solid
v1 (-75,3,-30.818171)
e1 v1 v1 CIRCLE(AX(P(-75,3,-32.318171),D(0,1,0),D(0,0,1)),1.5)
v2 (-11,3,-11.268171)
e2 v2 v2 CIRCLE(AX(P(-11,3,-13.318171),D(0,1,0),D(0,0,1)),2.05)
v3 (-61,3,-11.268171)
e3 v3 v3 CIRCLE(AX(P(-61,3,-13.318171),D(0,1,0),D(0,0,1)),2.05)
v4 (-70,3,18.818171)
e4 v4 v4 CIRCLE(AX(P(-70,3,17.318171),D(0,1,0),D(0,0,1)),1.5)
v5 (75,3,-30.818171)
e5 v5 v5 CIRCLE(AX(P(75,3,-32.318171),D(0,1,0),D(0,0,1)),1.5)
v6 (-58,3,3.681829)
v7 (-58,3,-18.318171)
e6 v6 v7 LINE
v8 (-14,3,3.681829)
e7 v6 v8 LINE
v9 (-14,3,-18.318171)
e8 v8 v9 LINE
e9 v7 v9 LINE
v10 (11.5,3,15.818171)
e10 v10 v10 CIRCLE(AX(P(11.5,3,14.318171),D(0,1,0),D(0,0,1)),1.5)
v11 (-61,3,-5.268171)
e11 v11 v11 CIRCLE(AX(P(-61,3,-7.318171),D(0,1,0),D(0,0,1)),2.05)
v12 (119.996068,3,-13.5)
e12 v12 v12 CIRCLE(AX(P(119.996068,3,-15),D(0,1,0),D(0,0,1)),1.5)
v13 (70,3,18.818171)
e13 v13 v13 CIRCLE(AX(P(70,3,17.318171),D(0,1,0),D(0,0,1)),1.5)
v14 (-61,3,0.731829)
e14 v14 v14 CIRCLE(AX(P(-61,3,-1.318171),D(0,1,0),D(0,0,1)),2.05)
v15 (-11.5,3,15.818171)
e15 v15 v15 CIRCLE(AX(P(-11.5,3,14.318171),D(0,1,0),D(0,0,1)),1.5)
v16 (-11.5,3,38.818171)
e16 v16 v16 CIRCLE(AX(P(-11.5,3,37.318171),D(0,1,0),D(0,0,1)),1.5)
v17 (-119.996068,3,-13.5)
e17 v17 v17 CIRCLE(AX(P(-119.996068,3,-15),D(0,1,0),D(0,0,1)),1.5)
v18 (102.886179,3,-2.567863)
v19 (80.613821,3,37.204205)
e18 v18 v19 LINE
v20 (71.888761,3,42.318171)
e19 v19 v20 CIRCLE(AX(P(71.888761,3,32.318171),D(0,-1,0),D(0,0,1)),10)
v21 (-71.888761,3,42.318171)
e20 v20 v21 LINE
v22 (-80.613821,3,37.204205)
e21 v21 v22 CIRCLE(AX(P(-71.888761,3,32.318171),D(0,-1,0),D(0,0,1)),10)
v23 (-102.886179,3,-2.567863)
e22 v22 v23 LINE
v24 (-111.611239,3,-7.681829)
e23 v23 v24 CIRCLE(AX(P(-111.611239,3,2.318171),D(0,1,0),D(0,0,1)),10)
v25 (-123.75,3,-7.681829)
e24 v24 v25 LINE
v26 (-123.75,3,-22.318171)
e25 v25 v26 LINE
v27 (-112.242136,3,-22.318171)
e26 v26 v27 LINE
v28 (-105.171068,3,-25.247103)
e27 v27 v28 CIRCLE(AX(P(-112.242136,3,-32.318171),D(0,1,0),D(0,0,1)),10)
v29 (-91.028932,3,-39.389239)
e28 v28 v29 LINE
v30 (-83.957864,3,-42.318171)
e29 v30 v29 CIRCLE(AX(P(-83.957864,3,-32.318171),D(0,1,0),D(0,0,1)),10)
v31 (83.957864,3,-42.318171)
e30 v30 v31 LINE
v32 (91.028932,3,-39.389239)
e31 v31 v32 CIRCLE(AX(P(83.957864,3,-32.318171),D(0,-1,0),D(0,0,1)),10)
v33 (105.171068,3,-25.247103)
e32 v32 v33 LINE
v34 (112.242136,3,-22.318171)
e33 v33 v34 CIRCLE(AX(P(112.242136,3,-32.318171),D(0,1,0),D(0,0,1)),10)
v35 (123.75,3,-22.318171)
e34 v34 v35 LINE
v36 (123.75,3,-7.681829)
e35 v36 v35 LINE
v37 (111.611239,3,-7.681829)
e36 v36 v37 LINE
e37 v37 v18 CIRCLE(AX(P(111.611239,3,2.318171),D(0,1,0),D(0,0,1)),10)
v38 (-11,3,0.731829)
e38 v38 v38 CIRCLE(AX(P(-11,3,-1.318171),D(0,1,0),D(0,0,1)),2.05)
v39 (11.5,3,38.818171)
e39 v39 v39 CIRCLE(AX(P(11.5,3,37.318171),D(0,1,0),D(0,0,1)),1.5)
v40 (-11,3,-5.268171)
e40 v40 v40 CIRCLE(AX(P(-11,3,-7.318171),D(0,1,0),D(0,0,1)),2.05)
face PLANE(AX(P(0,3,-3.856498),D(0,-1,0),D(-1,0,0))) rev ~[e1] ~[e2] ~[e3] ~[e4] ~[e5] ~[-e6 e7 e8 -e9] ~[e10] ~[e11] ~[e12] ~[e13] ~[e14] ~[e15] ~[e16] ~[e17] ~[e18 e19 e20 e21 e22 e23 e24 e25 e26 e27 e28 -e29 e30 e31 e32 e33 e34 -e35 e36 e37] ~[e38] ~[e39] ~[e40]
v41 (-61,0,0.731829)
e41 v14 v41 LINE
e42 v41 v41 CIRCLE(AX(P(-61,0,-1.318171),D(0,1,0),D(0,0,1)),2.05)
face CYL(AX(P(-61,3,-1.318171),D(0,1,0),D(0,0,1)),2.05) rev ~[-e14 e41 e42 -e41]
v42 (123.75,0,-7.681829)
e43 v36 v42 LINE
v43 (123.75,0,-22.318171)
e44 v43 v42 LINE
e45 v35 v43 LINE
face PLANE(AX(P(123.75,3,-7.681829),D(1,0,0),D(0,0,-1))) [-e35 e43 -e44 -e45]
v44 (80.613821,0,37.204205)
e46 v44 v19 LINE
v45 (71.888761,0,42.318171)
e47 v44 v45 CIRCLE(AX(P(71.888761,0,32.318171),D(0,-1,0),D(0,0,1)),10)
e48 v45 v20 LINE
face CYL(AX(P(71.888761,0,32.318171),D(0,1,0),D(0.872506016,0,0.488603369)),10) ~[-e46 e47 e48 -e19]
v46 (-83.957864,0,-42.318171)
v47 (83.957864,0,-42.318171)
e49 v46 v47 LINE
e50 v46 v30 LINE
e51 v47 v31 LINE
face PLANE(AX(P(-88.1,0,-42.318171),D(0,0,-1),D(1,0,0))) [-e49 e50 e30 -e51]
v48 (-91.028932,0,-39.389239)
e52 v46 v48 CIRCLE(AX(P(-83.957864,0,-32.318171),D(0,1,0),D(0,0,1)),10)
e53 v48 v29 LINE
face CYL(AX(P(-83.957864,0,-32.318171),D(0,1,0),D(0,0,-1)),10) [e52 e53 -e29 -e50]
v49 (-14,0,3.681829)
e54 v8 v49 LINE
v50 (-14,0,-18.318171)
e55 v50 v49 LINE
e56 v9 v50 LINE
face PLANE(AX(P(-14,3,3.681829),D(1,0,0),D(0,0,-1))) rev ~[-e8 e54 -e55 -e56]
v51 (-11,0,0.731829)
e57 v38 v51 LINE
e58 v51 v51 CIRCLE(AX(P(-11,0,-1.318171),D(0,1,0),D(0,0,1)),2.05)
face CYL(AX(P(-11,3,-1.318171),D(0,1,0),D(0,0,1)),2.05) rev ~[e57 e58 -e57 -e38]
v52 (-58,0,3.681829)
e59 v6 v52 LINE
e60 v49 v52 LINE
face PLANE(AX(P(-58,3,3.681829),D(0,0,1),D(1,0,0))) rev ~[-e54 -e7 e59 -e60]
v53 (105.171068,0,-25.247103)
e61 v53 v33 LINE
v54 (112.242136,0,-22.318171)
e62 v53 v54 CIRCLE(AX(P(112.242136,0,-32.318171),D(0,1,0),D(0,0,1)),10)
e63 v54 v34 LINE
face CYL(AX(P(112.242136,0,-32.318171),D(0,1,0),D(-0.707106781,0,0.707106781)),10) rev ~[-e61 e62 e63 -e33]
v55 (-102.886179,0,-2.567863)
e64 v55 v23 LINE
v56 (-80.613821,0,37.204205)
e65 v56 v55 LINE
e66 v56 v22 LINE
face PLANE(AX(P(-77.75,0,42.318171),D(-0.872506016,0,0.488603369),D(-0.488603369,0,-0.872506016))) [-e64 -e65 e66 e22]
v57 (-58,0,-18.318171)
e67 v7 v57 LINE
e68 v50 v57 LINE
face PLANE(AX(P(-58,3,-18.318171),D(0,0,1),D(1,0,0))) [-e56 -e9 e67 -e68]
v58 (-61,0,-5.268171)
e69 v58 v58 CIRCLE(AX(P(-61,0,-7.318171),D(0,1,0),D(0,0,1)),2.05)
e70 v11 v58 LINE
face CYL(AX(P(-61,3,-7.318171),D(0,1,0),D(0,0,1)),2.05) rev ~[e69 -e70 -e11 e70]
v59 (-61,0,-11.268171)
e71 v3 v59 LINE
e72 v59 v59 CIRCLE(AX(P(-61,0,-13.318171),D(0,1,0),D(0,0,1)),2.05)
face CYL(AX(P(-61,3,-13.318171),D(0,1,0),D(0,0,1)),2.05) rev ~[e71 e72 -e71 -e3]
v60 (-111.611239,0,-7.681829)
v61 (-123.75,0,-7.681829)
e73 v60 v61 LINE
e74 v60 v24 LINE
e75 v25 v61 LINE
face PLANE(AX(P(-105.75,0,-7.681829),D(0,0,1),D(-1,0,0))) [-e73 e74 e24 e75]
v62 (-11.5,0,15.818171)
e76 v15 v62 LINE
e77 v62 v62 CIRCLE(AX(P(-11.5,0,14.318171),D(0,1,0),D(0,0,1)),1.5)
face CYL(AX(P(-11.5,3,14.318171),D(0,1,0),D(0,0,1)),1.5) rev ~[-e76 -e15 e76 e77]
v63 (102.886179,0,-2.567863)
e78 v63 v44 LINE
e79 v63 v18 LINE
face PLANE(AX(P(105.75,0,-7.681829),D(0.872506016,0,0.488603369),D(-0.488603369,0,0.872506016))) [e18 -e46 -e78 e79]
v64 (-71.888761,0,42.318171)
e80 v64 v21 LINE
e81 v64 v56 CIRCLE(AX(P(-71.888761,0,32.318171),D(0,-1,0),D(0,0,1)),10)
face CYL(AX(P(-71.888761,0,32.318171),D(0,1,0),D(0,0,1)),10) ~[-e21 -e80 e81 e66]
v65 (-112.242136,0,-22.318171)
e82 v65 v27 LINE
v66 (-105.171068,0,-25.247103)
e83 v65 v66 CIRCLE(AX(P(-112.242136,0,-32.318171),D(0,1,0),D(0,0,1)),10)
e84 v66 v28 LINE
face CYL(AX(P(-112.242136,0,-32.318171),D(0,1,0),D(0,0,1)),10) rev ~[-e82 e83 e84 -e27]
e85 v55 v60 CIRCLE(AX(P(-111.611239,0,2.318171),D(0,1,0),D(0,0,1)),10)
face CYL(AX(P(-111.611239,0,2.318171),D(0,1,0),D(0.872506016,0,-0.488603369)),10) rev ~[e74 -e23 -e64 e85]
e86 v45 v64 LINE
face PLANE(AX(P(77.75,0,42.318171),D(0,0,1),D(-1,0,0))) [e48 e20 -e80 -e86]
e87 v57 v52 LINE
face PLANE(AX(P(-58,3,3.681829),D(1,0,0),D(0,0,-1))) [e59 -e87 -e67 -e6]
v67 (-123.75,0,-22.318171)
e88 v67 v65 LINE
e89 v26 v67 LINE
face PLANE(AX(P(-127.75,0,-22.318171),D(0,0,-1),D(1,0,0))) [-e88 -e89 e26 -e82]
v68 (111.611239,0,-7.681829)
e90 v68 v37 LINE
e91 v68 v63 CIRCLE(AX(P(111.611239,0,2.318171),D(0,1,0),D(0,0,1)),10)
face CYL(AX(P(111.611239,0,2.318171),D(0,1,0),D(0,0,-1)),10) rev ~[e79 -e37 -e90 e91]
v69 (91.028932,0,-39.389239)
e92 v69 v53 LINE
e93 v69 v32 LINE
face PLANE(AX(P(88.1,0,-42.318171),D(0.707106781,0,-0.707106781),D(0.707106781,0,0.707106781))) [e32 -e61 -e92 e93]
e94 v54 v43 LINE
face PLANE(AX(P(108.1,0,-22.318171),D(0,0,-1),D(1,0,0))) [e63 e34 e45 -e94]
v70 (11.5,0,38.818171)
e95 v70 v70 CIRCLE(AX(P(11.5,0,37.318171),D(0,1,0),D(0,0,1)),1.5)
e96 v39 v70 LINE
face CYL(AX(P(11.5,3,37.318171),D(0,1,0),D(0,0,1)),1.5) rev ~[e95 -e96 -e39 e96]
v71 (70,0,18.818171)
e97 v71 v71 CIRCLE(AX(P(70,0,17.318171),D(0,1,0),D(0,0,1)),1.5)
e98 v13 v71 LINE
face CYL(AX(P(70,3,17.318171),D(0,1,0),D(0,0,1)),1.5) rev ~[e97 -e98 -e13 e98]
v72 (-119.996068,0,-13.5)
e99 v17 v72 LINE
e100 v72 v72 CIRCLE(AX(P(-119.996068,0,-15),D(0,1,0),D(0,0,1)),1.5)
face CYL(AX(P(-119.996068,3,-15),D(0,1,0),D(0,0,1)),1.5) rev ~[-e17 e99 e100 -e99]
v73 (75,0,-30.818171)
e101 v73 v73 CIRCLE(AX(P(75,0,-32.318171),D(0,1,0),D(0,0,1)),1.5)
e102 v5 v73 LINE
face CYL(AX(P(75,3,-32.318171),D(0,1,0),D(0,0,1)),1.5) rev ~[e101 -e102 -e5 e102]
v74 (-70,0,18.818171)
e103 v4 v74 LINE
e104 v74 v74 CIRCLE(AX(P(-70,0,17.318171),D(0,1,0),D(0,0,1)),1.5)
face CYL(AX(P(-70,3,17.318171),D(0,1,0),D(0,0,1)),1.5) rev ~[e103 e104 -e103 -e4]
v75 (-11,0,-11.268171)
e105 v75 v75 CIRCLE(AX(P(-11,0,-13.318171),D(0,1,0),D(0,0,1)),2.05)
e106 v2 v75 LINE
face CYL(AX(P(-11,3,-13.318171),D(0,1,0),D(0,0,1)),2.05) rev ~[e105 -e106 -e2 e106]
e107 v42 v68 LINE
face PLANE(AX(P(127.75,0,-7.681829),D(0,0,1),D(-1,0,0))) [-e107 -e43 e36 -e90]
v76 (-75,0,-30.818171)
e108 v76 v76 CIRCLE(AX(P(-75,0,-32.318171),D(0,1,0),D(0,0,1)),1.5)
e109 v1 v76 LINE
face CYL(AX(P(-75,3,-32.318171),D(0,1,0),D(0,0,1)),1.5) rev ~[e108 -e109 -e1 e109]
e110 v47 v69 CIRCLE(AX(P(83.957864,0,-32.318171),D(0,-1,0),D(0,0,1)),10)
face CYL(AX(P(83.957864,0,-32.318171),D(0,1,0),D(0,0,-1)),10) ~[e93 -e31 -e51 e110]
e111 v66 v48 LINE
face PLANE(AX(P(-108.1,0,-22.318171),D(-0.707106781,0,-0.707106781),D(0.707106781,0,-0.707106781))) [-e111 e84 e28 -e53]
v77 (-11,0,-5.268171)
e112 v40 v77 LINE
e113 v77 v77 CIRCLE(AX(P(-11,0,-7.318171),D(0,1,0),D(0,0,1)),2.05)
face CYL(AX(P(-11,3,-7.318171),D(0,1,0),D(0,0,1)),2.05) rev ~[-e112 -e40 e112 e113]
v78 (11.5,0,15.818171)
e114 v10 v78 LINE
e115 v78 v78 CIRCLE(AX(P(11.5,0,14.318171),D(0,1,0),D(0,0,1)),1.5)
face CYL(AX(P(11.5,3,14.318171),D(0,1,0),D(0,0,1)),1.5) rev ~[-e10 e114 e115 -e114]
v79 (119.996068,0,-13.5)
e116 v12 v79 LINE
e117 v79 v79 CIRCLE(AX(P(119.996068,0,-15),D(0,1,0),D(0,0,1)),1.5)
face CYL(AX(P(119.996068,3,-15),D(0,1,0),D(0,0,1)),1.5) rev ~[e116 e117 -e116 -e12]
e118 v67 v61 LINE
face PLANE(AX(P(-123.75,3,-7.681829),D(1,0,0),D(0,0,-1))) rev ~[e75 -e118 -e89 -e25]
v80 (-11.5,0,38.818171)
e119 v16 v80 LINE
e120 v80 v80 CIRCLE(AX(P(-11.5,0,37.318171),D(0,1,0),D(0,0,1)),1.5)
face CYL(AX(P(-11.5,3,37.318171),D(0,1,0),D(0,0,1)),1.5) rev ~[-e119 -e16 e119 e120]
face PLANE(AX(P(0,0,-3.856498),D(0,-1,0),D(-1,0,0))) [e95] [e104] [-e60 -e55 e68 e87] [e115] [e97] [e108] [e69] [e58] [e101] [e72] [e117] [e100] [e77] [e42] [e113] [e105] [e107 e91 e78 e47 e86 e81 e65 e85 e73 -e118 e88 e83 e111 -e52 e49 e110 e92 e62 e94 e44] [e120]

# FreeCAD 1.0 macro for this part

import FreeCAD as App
import Part
import Sketcher
from FreeCAD import Vector
Q = App.Units.Quantity


def edges_at(feature, points):
    """Names of the edges that pass closest to the given points."""
    edges = feature.Shape.Edges
    near = lambda p: min(range(len(edges)), key=lambda i: edges[i].distToShape(Part.Vertex(*p))[0])
    return sorted({f"Edge{near(p) + 1}" for p in points})

doc = App.newDocument("Part")
body = doc.addObject("PartDesign::Body", "Body")

# Sketch on XZ plane
sketch1 = body.newObject("Sketcher::SketchObject", "Sketch")
sketch1.AttachmentSupport = (doc.getObject("XZ_Plane"), [""])
sketch1.MapMode = "FlatFace"
sketch1.addGeometry([
    Part.LineSegment(Vector(88.1, -42.318171, 0), Vector(-88.1, -42.318171, 0)),  # 0
    Part.LineSegment(Vector(-88.1, -42.318171, 0), Vector(-108.1, -22.318171, 0)),  # 1
    Part.LineSegment(Vector(-108.1, -22.318171, 0), Vector(-127.75, -22.318171, 0)),  # 2
    Part.LineSegment(Vector(-127.75, -22.318171, 0), Vector(-127.75, -7.681829, 0)),  # 3
    Part.LineSegment(Vector(-127.75, -7.681829, 0), Vector(-105.75, -7.681829, 0)),  # 4
    Part.LineSegment(Vector(-105.75, -7.681829, 0), Vector(-77.75, 42.318171, 0)),  # 5
    Part.LineSegment(Vector(-77.75, 42.318171, 0), Vector(77.75, 42.318171, 0)),  # 6
    Part.LineSegment(Vector(77.75, 42.318171, 0), Vector(105.75, -7.681829, 0)),  # 7
    Part.LineSegment(Vector(105.75, -7.681829, 0), Vector(127.75, -7.681829, 0)),  # 8
    Part.LineSegment(Vector(127.75, -7.681829, 0), Vector(127.75, -22.318171, 0)),  # 9
    Part.LineSegment(Vector(127.75, -22.318171, 0), Vector(108.1, -22.318171, 0)),  # 10
    Part.LineSegment(Vector(108.1, -22.318171, 0), Vector(88.1, -42.318171, 0)),  # 11
], False)
sketch1.addConstraint([
    Sketcher.Constraint("Coincident", 0, 2, 1, 1),
    Sketcher.Constraint("Coincident", 1, 2, 2, 1),
    Sketcher.Constraint("Coincident", 2, 2, 3, 1),
    Sketcher.Constraint("Coincident", 3, 2, 4, 1),
    Sketcher.Constraint("Coincident", 4, 2, 5, 1),
    Sketcher.Constraint("Coincident", 5, 2, 6, 1),
    Sketcher.Constraint("Coincident", 6, 2, 7, 1),
    Sketcher.Constraint("Coincident", 7, 2, 8, 1),
    Sketcher.Constraint("Coincident", 8, 2, 9, 1),
    Sketcher.Constraint("Coincident", 9, 2, 10, 1),
    Sketcher.Constraint("Coincident", 10, 2, 11, 1),
    Sketcher.Constraint("Coincident", 11, 2, 0, 1),
    Sketcher.Constraint("Horizontal", 0),
    Sketcher.Constraint("Horizontal", 2),
    Sketcher.Constraint("Vertical", 3),
    Sketcher.Constraint("Horizontal", 4),
    Sketcher.Constraint("Horizontal", 6),
    Sketcher.Constraint("Horizontal", 8),
    Sketcher.Constraint("Vertical", 9),
    Sketcher.Constraint("Horizontal", 10),
    Sketcher.Constraint("Symmetric", 4, 2, 7, 2, -2),
    Sketcher.Constraint("Symmetric", 2, 2, 9, 2, -2),
    Sketcher.Constraint("Perpendicular", 1, 11),
    Sketcher.Constraint("Equal", 2, 10),
    Sketcher.Constraint("Equal", 5, 7),
    Sketcher.Constraint("Equal", 1, 11),
    Sketcher.Constraint("DistanceX", 4, 1, 4, 2, Q("22 mm")),
    Sketcher.Constraint("DistanceX", 0, 2, 0, 1, Q("176.2 mm")),
    Sketcher.Constraint("DistanceX", 6, 1, 6, 2, Q("155.5 mm")),
    Sketcher.Constraint("DistanceX", 1, 2, 0, 2, Q("20 mm")),
    Sketcher.Constraint("DistanceX", 4, 2, 5, 2, Q("28 mm")),
    Sketcher.Constraint("DistanceY", 4, 2, 5, 2, Q("50 mm")),
    Sketcher.Constraint("DistanceY", 3, 1, 3, 2, Q("14.636342 mm")),
    Sketcher.Constraint("DistanceY", 0, 2, -1, 1, Q("42.318171 mm")),
])
pad1 = body.newObject("PartDesign::Pad", "Pad")
pad1.Profile = sketch1
pad1.Length = 3
pad1.Reversed = True
doc.recompute()

fillet = body.newObject("PartDesign::Fillet", "Fillet")
fillet.Base = (pad1, edges_at(pad1, [
    (-88.1, 1.5, -42.318),
    (88.1, 1.5, -42.318),
    (108.1, 1.5, -22.318),
    (105.75, 1.5, -7.682),
    (77.75, 1.5, 42.318),
    (-77.75, 1.5, 42.318),
    (-105.75, 1.5, -7.682),
    (-108.1, 1.5, -22.318),
]))
fillet.Radius = 10

# Sketch on XZ plane
sketch2 = body.newObject("Sketcher::SketchObject", "Sketch001")
sketch2.AttachmentSupport = (doc.getObject("XZ_Plane"), [""])
sketch2.MapMode = "FlatFace"
sketch2.AttachmentOffset = App.Placement(Vector(0, 0, -3), App.Rotation())
sketch2.addGeometry([
    Part.Circle(Vector(70, 17.318171, 0), Vector(0, 0, 1), 1.5),  # 0
    Part.Circle(Vector(-70, 17.318171, 0), Vector(0, 0, 1), 1.5),  # 1
    Part.Circle(Vector(-119.996068, -15, 0), Vector(0, 0, 1), 1.5),  # 2
    Part.Circle(Vector(119.996068, -15, 0), Vector(0, 0, 1), 1.5),  # 3
    Part.Circle(Vector(-75, -32.318171, 0), Vector(0, 0, 1), 1.5),  # 4
    Part.Circle(Vector(75, -32.318171, 0), Vector(0, 0, 1), 1.5),  # 5
    Part.Circle(Vector(-11.5, 14.318171, 0), Vector(0, 0, 1), 1.5),  # 6
    Part.Circle(Vector(11.5, 14.318171, 0), Vector(0, 0, 1), 1.5),  # 7
    Part.Circle(Vector(-11.5, 37.318171, 0), Vector(0, 0, 1), 1.5),  # 8
    Part.Circle(Vector(11.5, 37.318171, 0), Vector(0, 0, 1), 1.5),  # 9
    Part.Circle(Vector(-61, -7.318171, 0), Vector(0, 0, 1), 2.05),  # 10
    Part.Circle(Vector(-11, -7.318171, 0), Vector(0, 0, 1), 2.05),  # 11
    Part.Circle(Vector(-61, -13.318171, 0), Vector(0, 0, 1), 2.05),  # 12
    Part.Circle(Vector(-61, -1.318171, 0), Vector(0, 0, 1), 2.05),  # 13
    Part.Circle(Vector(-11, -13.318171, 0), Vector(0, 0, 1), 2.05),  # 14
    Part.Circle(Vector(-11, -1.318171, 0), Vector(0, 0, 1), 2.05),  # 15
    Part.LineSegment(Vector(-57, -17.318171, 0), Vector(-57, 2.681829, 0)),  # 16
    Part.LineSegment(Vector(-57, 2.681829, 0), Vector(-15, 2.681829, 0)),  # 17
    Part.LineSegment(Vector(-15, 2.681829, 0), Vector(-15, -17.318171, 0)),  # 18
    Part.LineSegment(Vector(-15, -17.318171, 0), Vector(-57, -17.318171, 0)),  # 19
], False)
sketch2.addConstraint([
    Sketcher.Constraint("Coincident", 16, 2, 17, 1),
    Sketcher.Constraint("Coincident", 17, 2, 18, 1),
    Sketcher.Constraint("Coincident", 18, 2, 19, 1),
    Sketcher.Constraint("Coincident", 19, 2, 16, 1),
    Sketcher.Constraint("Vertical", 16),
    Sketcher.Constraint("Horizontal", 17),
    Sketcher.Constraint("Vertical", 18),
    Sketcher.Constraint("Horizontal", 19),
    Sketcher.Constraint("Equal", 0, 1),
    Sketcher.Constraint("Equal", 1, 2),
    Sketcher.Constraint("Equal", 2, 3),
    Sketcher.Constraint("Equal", 3, 4),
    Sketcher.Constraint("Equal", 4, 5),
    Sketcher.Constraint("Equal", 5, 6),
    Sketcher.Constraint("Equal", 6, 7),
    Sketcher.Constraint("Equal", 7, 8),
    Sketcher.Constraint("Equal", 8, 9),
    Sketcher.Constraint("Equal", 10, 11),
    Sketcher.Constraint("Equal", 11, 12),
    Sketcher.Constraint("Equal", 12, 13),
    Sketcher.Constraint("Equal", 13, 14),
    Sketcher.Constraint("Equal", 14, 15),
    Sketcher.Constraint("Symmetric", 0, 3, 1, 3, -2),
    Sketcher.Constraint("Symmetric", 2, 3, 3, 3, -2),
    Sketcher.Constraint("Symmetric", 4, 3, 5, 3, -2),
    Sketcher.Constraint("Symmetric", 6, 3, 7, 3, -2),
    Sketcher.Constraint("Symmetric", 8, 3, 9, 3, -2),
    Sketcher.Constraint("Horizontal", 10, 3, 11, 3),
    Sketcher.Constraint("Horizontal", 12, 3, 14, 3),
    Sketcher.Constraint("Horizontal", 13, 3, 15, 3),
    Sketcher.Constraint("Vertical", 6, 3, 8, 3),
    Sketcher.Constraint("Vertical", 10, 3, 12, 3),
    Sketcher.Constraint("Vertical", 12, 3, 13, 3),
    Sketcher.Constraint("Vertical", 11, 3, 14, 3),
    Sketcher.Constraint("Vertical", 14, 3, 15, 3),
    Sketcher.Constraint("Diameter", 0, Q("3 mm")),
    Sketcher.Constraint("Diameter", 10, Q("4.1 mm")),
    Sketcher.Constraint("DistanceX", 17, 1, 17, 2, Q("42 mm")),
    Sketcher.Constraint("DistanceY", 16, 1, 16, 2, Q("20 mm")),
    Sketcher.Constraint("DistanceX", -1, 1, 0, 3, Q("70 mm")),
    Sketcher.Constraint("DistanceY", 2, 3, -1, 1, Q("15 mm")),
    Sketcher.Constraint("DistanceX", 4, 3, -1, 1, Q("75 mm")),
    Sketcher.Constraint("DistanceX", 10, 3, -1, 1, Q("61 mm")),
    Sketcher.Constraint("DistanceX", 11, 3, -1, 1, Q("11 mm")),
    Sketcher.Constraint("DistanceX", 16, 2, -1, 1, Q("57 mm")),
    Sketcher.Constraint("DistanceY", 6, 3, 1, 3, Q("3 mm")),
    Sketcher.Constraint("DistanceX", 6, 3, 7, 3, Q("23 mm")),
    Sketcher.Constraint("DistanceY", 6, 3, 8, 3, Q("23 mm")),
    Sketcher.Constraint("DistanceY", 4, 3, 10, 3, Q("25 mm")),
    Sketcher.Constraint("DistanceY", 12, 3, 10, 3, Q("6 mm")),
    Sketcher.Constraint("DistanceY", 10, 3, 13, 3, Q("6 mm")),
    Sketcher.Constraint("DistanceY", 13, 3, 16, 2, Q("4 mm")),
    Sketcher.Constraint("DistanceY", -1, 1, 0, 3, Q("17.318171 mm")),
    Sketcher.Constraint("DistanceY", 4, 3, -1, 1, Q("32.318171 mm")),
    Sketcher.Constraint("DistanceX", 2, 3, -1, 1, Q("119.996068 mm")),
])
pocket1 = body.newObject("PartDesign::Pocket", "Pocket")
pocket1.Profile = sketch2
pocket1.Type = "ThroughAll"
pocket1.Reversed = True

# Sketch on XZ plane
sketch3 = body.newObject("Sketcher::SketchObject", "Sketch002")
sketch3.AttachmentSupport = (doc.getObject("XZ_Plane"), [""])
sketch3.MapMode = "FlatFace"
sketch3.AttachmentOffset = App.Placement(Vector(0, 0, -3), App.Rotation())
sketch3.addGeometry([
    Part.LineSegment(Vector(-127.75, -22.318171, 0), Vector(-127.75, -7.681829, 0)),  # 0
    Part.LineSegment(Vector(-127.75, -7.681829, 0), Vector(-123.75, -7.681829, 0)),  # 1
    Part.LineSegment(Vector(-123.75, -7.681829, 0), Vector(-123.75, -22.318171, 0)),  # 2
    Part.LineSegment(Vector(-123.75, -22.318171, 0), Vector(-127.75, -22.318171, 0)),  # 3
    Part.LineSegment(Vector(123.75, -22.318171, 0), Vector(123.75, -7.681829, 0)),  # 4
    Part.LineSegment(Vector(123.75, -7.681829, 0), Vector(127.75, -7.681829, 0)),  # 5
    Part.LineSegment(Vector(127.75, -7.681829, 0), Vector(127.75, -22.318171, 0)),  # 6
    Part.LineSegment(Vector(127.75, -22.318171, 0), Vector(123.75, -22.318171, 0)),  # 7
], False)
sketch3.addConstraint([
    Sketcher.Constraint("Coincident", 0, 2, 1, 1),
    Sketcher.Constraint("Coincident", 1, 2, 2, 1),
    Sketcher.Constraint("Coincident", 2, 2, 3, 1),
    Sketcher.Constraint("Coincident", 3, 2, 0, 1),
    Sketcher.Constraint("Coincident", 4, 2, 5, 1),
    Sketcher.Constraint("Coincident", 5, 2, 6, 1),
    Sketcher.Constraint("Coincident", 6, 2, 7, 1),
    Sketcher.Constraint("Coincident", 7, 2, 4, 1),
    Sketcher.Constraint("Vertical", 0),
    Sketcher.Constraint("Horizontal", 1),
    Sketcher.Constraint("Vertical", 2),
    Sketcher.Constraint("Horizontal", 3),
    Sketcher.Constraint("Vertical", 4),
    Sketcher.Constraint("Horizontal", 5),
    Sketcher.Constraint("Vertical", 6),
    Sketcher.Constraint("Horizontal", 7),
    Sketcher.Constraint("Symmetric", 1, 2, 4, 2, -2),
    Sketcher.Constraint("Symmetric", 3, 2, 6, 2, -2),
    Sketcher.Constraint("DistanceX", 1, 1, 1, 2, Q("4 mm")),
    Sketcher.Constraint("DistanceX", 1, 2, 4, 2, Q("247.5 mm")),
    Sketcher.Constraint("DistanceY", 0, 1, 0, 2, Q("14.636342 mm")),
    Sketcher.Constraint("DistanceY", 0, 2, -1, 1, Q("7.681829 mm")),
])
pocket2 = body.newObject("PartDesign::Pocket", "Pocket001")
pocket2.Profile = sketch3
pocket2.Type = "ThroughAll"
pocket2.Reversed = True

# Sketch on XZ plane
sketch4 = body.newObject("Sketcher::SketchObject", "Sketch003")
sketch4.AttachmentSupport = (doc.getObject("XZ_Plane"), [""])
sketch4.MapMode = "FlatFace"
sketch4.AttachmentOffset = App.Placement(Vector(0, 0, -3), App.Rotation())
sketch4.addGeometry([
    Part.LineSegment(Vector(-58, -18.318171, 0), Vector(-58, 3.681829, 0)),
    Part.LineSegment(Vector(-58, 3.681829, 0), Vector(-14, 3.681829, 0)),
    Part.LineSegment(Vector(-14, 3.681829, 0), Vector(-14, -18.318171, 0)),
    Part.LineSegment(Vector(-14, -18.318171, 0), Vector(-58, -18.318171, 0)),
], False)
sketch4.addConstraint([
    Sketcher.Constraint("Coincident", 0, 2, 1, 1),
    Sketcher.Constraint("Coincident", 1, 2, 2, 1),
    Sketcher.Constraint("Coincident", 2, 2, 3, 1),
    Sketcher.Constraint("Coincident", 3, 2, 0, 1),
    Sketcher.Constraint("Vertical", 0),
    Sketcher.Constraint("Horizontal", 1),
    Sketcher.Constraint("Vertical", 2),
    Sketcher.Constraint("Horizontal", 3),
    Sketcher.Constraint("DistanceX", 1, 1, 1, 2, Q("44 mm")),
    Sketcher.Constraint("DistanceY", 0, 1, 0, 2, Q("22 mm")),
    Sketcher.Constraint("DistanceX", 0, 2, -1, 1, Q("58 mm")),
    Sketcher.Constraint("DistanceY", -1, 1, 0, 2, Q("3.681829 mm")),
])
pocket3 = body.newObject("PartDesign::Pocket", "Pocket002")
pocket3.Profile = sketch4
pocket3.Type = "ThroughAll"
pocket3.Reversed = True

doc.recompute()
